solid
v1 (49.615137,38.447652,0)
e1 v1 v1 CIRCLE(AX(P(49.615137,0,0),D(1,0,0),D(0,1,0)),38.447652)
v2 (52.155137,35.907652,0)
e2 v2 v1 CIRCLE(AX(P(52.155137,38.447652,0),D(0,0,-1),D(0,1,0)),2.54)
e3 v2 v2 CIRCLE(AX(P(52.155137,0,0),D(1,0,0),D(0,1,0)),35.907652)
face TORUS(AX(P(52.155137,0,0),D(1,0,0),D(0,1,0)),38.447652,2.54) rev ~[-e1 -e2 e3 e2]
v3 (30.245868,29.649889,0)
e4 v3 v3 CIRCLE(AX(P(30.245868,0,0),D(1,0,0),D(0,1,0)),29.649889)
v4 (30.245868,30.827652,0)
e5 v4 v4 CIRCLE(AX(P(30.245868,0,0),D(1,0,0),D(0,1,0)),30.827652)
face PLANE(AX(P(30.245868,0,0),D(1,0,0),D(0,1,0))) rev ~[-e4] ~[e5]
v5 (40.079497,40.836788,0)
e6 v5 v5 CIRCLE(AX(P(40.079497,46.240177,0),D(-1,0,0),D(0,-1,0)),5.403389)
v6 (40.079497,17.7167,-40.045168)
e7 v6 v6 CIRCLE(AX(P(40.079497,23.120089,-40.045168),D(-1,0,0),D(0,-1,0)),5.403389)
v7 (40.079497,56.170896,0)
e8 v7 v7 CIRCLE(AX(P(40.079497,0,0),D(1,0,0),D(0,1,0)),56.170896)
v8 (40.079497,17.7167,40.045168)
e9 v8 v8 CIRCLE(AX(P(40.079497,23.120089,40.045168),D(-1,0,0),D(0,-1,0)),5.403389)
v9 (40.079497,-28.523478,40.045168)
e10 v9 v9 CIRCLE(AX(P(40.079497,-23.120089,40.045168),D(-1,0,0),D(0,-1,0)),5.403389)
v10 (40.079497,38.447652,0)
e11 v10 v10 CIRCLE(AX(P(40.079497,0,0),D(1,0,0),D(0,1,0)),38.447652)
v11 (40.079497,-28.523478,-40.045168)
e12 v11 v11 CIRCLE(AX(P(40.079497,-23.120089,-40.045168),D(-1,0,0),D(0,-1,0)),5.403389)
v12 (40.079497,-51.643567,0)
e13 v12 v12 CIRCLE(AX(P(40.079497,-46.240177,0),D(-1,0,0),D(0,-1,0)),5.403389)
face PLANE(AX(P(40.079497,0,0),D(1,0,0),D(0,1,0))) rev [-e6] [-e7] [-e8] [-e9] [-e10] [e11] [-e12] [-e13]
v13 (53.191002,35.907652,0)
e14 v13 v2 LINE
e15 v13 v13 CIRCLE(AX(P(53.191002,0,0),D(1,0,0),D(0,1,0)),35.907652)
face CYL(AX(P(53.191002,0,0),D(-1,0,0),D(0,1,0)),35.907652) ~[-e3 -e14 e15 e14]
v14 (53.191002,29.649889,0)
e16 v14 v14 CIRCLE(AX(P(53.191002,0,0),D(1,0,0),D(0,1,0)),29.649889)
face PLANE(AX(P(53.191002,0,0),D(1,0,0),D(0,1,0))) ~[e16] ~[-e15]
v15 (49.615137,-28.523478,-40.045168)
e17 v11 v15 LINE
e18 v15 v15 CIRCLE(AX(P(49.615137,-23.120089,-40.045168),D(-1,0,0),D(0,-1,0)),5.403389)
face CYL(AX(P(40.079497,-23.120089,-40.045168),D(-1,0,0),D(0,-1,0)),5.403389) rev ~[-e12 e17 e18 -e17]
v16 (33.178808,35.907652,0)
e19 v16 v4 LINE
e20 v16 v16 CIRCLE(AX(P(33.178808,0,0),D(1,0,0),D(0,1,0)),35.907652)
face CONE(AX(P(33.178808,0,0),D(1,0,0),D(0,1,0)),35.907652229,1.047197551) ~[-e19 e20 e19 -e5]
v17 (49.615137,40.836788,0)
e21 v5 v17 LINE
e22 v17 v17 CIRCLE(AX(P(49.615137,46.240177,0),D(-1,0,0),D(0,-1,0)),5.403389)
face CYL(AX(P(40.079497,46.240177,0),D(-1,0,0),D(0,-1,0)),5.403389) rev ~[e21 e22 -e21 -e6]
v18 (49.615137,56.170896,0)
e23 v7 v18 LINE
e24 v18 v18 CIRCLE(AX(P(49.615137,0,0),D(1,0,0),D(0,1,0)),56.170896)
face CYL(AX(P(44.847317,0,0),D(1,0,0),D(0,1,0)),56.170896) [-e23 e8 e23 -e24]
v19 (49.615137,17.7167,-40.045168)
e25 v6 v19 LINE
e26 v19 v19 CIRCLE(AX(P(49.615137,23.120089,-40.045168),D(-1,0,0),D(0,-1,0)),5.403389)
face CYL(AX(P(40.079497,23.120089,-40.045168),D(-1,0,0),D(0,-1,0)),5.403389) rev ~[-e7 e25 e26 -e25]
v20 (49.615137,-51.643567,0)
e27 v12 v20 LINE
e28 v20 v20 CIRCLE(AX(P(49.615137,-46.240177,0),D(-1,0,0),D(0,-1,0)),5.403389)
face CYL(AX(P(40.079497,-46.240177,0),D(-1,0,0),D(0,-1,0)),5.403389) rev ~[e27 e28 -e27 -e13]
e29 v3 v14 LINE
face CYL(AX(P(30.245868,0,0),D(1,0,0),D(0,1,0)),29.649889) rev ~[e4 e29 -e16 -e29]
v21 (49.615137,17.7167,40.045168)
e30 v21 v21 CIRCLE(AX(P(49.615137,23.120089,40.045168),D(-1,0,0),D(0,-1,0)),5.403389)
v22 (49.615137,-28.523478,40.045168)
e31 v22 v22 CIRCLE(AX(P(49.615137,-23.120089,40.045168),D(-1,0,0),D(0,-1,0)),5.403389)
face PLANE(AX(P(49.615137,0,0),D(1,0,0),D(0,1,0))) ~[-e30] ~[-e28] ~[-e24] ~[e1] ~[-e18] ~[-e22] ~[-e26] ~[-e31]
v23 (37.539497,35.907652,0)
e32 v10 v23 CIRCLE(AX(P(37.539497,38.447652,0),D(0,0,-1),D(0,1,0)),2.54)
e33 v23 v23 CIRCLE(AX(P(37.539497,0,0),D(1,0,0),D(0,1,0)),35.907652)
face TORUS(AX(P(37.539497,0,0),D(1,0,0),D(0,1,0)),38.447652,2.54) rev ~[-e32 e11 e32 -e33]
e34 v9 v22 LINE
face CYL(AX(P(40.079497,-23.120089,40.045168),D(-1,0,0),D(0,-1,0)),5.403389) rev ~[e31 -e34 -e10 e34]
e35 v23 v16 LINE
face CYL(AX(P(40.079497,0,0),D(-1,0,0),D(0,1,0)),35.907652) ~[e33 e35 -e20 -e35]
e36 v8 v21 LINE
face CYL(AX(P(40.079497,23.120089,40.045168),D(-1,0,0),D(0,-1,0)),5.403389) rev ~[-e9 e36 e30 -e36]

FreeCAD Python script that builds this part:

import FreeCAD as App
import Part
import Sketcher
Q = App.Units.Quantity


def edges_at(feature, points):
    """Names of the edges that pass closest to the given points."""
    edges = feature.Shape.Edges
    near = lambda p: min(range(len(edges)), key=lambda i: edges[i].distToShape(Part.Vertex(*p))[0])
    return sorted({f"Edge{near(p) + 1}" for p in points})

doc = App.newDocument("Part")
body = doc.addObject("PartDesign::Body", "Body")

# Sketch on XY plane
sketch1 = doc.addObject("Sketcher::SketchObject", "Sketch")
body.addObject(sketch1)
sketch1.AttachmentSupport = (doc.XY_Plane, [""])
sketch1.MapMode = "FlatFace"
sketch1.addGeometry([
    Part.LineSegment(App.Vector(40.079497, 56.170896, 0), App.Vector(40.079497, 35.907652, 0)),  # 0
    Part.LineSegment(App.Vector(40.079497, 35.907652, 0), App.Vector(30.245868, 35.907652, 0)),  # 1
    Part.LineSegment(App.Vector(30.245868, 35.907652, 0), App.Vector(30.245868, 29.649889, 0)),  # 2
    Part.LineSegment(App.Vector(30.245868, 29.649889, 0), App.Vector(53.191002, 29.649889, 0)),  # 3
    Part.LineSegment(App.Vector(53.191002, 29.649889, 0), App.Vector(53.191002, 35.907652, 0)),  # 4
    Part.LineSegment(App.Vector(53.191002, 35.907652, 0), App.Vector(49.615137, 35.907652, 0)),  # 5
    Part.LineSegment(App.Vector(49.615137, 35.907652, 0), App.Vector(49.615137, 56.170896, 0)),  # 6
    Part.LineSegment(App.Vector(49.615137, 56.170896, 0), App.Vector(40.079497, 56.170896, 0)),  # 7
], False)
sketch1.addConstraint([
    Sketcher.Constraint("Coincident", 0, 2, 1, 1),
    Sketcher.Constraint("Coincident", 1, 2, 2, 1),
    Sketcher.Constraint("Coincident", 2, 2, 3, 1),
    Sketcher.Constraint("Coincident", 3, 2, 4, 1),
    Sketcher.Constraint("Coincident", 4, 2, 5, 1),
    Sketcher.Constraint("Coincident", 5, 2, 6, 1),
    Sketcher.Constraint("Coincident", 6, 2, 7, 1),
    Sketcher.Constraint("Coincident", 7, 2, 0, 1),
    Sketcher.Constraint("Vertical", 0),
    Sketcher.Constraint("Horizontal", 1),
    Sketcher.Constraint("Vertical", 2),
    Sketcher.Constraint("Horizontal", 3),
    Sketcher.Constraint("Vertical", 4),
    Sketcher.Constraint("Horizontal", 5),
    Sketcher.Constraint("Vertical", 6),
    Sketcher.Constraint("Horizontal", 7),
    Sketcher.Constraint("Horizontal", 1, 2, 4, 2),
    Sketcher.Constraint("DistanceX", 1, 2, 1, 1, 9.833628),
    Sketcher.Constraint("DistanceX", 7, 2, 7, 1, 9.53564),
    Sketcher.Constraint("DistanceX", 3, 1, 3, 2, 22.945134),
    Sketcher.Constraint("DistanceY", 0, 2, 0, 1, 20.263243),
    Sketcher.Constraint("DistanceY", 2, 2, 2, 1, 6.257763),
    Sketcher.Constraint("DistanceX", -1, 1, 1, 2, 30.245868),
    Sketcher.Constraint("DistanceY", -1, 1, 2, 2, 29.649889),
])
revolution = doc.addObject("PartDesign::Revolution", "Revolution")
body.addObject(revolution)
revolution.Profile = sketch1
revolution.ReferenceAxis = (sketch1, ["H_Axis"])
revolution.Angle = 360
doc.recompute()

fillet = doc.addObject("PartDesign::Fillet", "Fillet")
body.addObject(fillet)
fillet.Base = (revolution, edges_at(revolution, [(49.615, -35.908, 0)]))
fillet.Radius = Q("0.1 in")
doc.recompute()

fillet2 = doc.addObject("PartDesign::Fillet", "Fillet001")
body.addObject(fillet2)
fillet2.Base = (fillet, edges_at(fillet, [(40.079, -35.908, 0)]))
fillet2.Radius = Q("0.1 in")
doc.recompute()

chamfer = doc.addObject("PartDesign::Chamfer", "Chamfer")
body.addObject(chamfer)
chamfer.Base = (fillet2, edges_at(fillet2, [(30.246, -35.908, 0)]))
chamfer.ChamferType = "Two distances"
chamfer.Size = 2.932939
chamfer.Size2 = Q("0.2 in")

# Sketch on YZ plane
sketch2 = doc.addObject("Sketcher::SketchObject", "Sketch001")
body.addObject(sketch2)
sketch2.AttachmentSupport = (doc.YZ_Plane, [""])
sketch2.MapMode = "FlatFace"
sketch2.AttachmentOffset = App.Placement(App.Vector(0, 0, 40.079497), App.Rotation())
sketch2.addGeometry(Part.Circle(App.Vector(46.240177, 0, 0), App.Vector(0, 0, 1), 5.403389), False)
sketch2.addConstraint([
    Sketcher.Constraint("PointOnObject", 0, 3, -1),
    Sketcher.Constraint("Diameter", 0, 10.806778),
    Sketcher.Constraint("DistanceX", -1, 1, 0, 3, 46.240177),
])
pocket1 = doc.addObject("PartDesign::Pocket", "Pocket")
body.addObject(pocket1)
pocket1.Profile = sketch2
pocket1.Type = "ThroughAll"
pocket1.Midplane = True

# Sketch on YZ plane
sketch3 = doc.addObject("Sketcher::SketchObject", "Sketch002")
body.addObject(sketch3)
sketch3.AttachmentSupport = (doc.YZ_Plane, [""])
sketch3.MapMode = "FlatFace"
sketch3.AttachmentOffset = App.Placement(App.Vector(0, 0, 40.079497), App.Rotation())
sketch3.addGeometry([
    Part.Circle(App.Vector(46.240177, 0, 0), App.Vector(0, 0, 1), 5.403389),  # 0
    Part.Circle(App.Vector(23.120089, -40.045168, 0), App.Vector(0, 0, 1), 5.403389),  # 1
    Part.Circle(App.Vector(-23.120089, -40.045168, 0), App.Vector(0, 0, 1), 5.403389),  # 2
    Part.Circle(App.Vector(-46.240177, 0, 0), App.Vector(0, 0, 1), 5.403389),  # 3
    Part.Circle(App.Vector(-23.120089, 40.045168, 0), App.Vector(0, 0, 1), 5.403389),  # 4
    Part.Circle(App.Vector(23.120089, 40.045168, 0), App.Vector(0, 0, 1), 5.403389),  # 5
], False)
sketch3.addConstraint([
    Sketcher.Constraint("Equal", 0, 1),
    Sketcher.Constraint("Equal", 1, 2),
    Sketcher.Constraint("Equal", 2, 3),
    Sketcher.Constraint("Equal", 3, 4),
    Sketcher.Constraint("Equal", 4, 5),
    Sketcher.Constraint("Symmetric", 0, 3, 3, 3, -1, 1),
    Sketcher.Constraint("Symmetric", 1, 3, 4, 3, -1, 1),
    Sketcher.Constraint("Symmetric", 2, 3, 5, 3, -1, 1),
    Sketcher.Constraint("Symmetric", 1, 3, 2, 3, -2),
    Sketcher.Constraint("PointOnObject", 0, 3, -1),
    Sketcher.Constraint("Diameter", 0, 10.806778),
    Sketcher.Constraint("DistanceX", -1, 1, 1, 3, 23.120089),
    Sketcher.Constraint("DistanceY", 1, 3, -1, 1, 40.045168),
    Sketcher.Constraint("DistanceX", 1, 3, 0, 3, 23.120089),
])
pocket2 = doc.addObject("PartDesign::Pocket", "Pocket001")
body.addObject(pocket2)
pocket2.Profile = sketch3
pocket2.Type = "ThroughAll"
pocket2.Midplane = True

doc.recompute()
